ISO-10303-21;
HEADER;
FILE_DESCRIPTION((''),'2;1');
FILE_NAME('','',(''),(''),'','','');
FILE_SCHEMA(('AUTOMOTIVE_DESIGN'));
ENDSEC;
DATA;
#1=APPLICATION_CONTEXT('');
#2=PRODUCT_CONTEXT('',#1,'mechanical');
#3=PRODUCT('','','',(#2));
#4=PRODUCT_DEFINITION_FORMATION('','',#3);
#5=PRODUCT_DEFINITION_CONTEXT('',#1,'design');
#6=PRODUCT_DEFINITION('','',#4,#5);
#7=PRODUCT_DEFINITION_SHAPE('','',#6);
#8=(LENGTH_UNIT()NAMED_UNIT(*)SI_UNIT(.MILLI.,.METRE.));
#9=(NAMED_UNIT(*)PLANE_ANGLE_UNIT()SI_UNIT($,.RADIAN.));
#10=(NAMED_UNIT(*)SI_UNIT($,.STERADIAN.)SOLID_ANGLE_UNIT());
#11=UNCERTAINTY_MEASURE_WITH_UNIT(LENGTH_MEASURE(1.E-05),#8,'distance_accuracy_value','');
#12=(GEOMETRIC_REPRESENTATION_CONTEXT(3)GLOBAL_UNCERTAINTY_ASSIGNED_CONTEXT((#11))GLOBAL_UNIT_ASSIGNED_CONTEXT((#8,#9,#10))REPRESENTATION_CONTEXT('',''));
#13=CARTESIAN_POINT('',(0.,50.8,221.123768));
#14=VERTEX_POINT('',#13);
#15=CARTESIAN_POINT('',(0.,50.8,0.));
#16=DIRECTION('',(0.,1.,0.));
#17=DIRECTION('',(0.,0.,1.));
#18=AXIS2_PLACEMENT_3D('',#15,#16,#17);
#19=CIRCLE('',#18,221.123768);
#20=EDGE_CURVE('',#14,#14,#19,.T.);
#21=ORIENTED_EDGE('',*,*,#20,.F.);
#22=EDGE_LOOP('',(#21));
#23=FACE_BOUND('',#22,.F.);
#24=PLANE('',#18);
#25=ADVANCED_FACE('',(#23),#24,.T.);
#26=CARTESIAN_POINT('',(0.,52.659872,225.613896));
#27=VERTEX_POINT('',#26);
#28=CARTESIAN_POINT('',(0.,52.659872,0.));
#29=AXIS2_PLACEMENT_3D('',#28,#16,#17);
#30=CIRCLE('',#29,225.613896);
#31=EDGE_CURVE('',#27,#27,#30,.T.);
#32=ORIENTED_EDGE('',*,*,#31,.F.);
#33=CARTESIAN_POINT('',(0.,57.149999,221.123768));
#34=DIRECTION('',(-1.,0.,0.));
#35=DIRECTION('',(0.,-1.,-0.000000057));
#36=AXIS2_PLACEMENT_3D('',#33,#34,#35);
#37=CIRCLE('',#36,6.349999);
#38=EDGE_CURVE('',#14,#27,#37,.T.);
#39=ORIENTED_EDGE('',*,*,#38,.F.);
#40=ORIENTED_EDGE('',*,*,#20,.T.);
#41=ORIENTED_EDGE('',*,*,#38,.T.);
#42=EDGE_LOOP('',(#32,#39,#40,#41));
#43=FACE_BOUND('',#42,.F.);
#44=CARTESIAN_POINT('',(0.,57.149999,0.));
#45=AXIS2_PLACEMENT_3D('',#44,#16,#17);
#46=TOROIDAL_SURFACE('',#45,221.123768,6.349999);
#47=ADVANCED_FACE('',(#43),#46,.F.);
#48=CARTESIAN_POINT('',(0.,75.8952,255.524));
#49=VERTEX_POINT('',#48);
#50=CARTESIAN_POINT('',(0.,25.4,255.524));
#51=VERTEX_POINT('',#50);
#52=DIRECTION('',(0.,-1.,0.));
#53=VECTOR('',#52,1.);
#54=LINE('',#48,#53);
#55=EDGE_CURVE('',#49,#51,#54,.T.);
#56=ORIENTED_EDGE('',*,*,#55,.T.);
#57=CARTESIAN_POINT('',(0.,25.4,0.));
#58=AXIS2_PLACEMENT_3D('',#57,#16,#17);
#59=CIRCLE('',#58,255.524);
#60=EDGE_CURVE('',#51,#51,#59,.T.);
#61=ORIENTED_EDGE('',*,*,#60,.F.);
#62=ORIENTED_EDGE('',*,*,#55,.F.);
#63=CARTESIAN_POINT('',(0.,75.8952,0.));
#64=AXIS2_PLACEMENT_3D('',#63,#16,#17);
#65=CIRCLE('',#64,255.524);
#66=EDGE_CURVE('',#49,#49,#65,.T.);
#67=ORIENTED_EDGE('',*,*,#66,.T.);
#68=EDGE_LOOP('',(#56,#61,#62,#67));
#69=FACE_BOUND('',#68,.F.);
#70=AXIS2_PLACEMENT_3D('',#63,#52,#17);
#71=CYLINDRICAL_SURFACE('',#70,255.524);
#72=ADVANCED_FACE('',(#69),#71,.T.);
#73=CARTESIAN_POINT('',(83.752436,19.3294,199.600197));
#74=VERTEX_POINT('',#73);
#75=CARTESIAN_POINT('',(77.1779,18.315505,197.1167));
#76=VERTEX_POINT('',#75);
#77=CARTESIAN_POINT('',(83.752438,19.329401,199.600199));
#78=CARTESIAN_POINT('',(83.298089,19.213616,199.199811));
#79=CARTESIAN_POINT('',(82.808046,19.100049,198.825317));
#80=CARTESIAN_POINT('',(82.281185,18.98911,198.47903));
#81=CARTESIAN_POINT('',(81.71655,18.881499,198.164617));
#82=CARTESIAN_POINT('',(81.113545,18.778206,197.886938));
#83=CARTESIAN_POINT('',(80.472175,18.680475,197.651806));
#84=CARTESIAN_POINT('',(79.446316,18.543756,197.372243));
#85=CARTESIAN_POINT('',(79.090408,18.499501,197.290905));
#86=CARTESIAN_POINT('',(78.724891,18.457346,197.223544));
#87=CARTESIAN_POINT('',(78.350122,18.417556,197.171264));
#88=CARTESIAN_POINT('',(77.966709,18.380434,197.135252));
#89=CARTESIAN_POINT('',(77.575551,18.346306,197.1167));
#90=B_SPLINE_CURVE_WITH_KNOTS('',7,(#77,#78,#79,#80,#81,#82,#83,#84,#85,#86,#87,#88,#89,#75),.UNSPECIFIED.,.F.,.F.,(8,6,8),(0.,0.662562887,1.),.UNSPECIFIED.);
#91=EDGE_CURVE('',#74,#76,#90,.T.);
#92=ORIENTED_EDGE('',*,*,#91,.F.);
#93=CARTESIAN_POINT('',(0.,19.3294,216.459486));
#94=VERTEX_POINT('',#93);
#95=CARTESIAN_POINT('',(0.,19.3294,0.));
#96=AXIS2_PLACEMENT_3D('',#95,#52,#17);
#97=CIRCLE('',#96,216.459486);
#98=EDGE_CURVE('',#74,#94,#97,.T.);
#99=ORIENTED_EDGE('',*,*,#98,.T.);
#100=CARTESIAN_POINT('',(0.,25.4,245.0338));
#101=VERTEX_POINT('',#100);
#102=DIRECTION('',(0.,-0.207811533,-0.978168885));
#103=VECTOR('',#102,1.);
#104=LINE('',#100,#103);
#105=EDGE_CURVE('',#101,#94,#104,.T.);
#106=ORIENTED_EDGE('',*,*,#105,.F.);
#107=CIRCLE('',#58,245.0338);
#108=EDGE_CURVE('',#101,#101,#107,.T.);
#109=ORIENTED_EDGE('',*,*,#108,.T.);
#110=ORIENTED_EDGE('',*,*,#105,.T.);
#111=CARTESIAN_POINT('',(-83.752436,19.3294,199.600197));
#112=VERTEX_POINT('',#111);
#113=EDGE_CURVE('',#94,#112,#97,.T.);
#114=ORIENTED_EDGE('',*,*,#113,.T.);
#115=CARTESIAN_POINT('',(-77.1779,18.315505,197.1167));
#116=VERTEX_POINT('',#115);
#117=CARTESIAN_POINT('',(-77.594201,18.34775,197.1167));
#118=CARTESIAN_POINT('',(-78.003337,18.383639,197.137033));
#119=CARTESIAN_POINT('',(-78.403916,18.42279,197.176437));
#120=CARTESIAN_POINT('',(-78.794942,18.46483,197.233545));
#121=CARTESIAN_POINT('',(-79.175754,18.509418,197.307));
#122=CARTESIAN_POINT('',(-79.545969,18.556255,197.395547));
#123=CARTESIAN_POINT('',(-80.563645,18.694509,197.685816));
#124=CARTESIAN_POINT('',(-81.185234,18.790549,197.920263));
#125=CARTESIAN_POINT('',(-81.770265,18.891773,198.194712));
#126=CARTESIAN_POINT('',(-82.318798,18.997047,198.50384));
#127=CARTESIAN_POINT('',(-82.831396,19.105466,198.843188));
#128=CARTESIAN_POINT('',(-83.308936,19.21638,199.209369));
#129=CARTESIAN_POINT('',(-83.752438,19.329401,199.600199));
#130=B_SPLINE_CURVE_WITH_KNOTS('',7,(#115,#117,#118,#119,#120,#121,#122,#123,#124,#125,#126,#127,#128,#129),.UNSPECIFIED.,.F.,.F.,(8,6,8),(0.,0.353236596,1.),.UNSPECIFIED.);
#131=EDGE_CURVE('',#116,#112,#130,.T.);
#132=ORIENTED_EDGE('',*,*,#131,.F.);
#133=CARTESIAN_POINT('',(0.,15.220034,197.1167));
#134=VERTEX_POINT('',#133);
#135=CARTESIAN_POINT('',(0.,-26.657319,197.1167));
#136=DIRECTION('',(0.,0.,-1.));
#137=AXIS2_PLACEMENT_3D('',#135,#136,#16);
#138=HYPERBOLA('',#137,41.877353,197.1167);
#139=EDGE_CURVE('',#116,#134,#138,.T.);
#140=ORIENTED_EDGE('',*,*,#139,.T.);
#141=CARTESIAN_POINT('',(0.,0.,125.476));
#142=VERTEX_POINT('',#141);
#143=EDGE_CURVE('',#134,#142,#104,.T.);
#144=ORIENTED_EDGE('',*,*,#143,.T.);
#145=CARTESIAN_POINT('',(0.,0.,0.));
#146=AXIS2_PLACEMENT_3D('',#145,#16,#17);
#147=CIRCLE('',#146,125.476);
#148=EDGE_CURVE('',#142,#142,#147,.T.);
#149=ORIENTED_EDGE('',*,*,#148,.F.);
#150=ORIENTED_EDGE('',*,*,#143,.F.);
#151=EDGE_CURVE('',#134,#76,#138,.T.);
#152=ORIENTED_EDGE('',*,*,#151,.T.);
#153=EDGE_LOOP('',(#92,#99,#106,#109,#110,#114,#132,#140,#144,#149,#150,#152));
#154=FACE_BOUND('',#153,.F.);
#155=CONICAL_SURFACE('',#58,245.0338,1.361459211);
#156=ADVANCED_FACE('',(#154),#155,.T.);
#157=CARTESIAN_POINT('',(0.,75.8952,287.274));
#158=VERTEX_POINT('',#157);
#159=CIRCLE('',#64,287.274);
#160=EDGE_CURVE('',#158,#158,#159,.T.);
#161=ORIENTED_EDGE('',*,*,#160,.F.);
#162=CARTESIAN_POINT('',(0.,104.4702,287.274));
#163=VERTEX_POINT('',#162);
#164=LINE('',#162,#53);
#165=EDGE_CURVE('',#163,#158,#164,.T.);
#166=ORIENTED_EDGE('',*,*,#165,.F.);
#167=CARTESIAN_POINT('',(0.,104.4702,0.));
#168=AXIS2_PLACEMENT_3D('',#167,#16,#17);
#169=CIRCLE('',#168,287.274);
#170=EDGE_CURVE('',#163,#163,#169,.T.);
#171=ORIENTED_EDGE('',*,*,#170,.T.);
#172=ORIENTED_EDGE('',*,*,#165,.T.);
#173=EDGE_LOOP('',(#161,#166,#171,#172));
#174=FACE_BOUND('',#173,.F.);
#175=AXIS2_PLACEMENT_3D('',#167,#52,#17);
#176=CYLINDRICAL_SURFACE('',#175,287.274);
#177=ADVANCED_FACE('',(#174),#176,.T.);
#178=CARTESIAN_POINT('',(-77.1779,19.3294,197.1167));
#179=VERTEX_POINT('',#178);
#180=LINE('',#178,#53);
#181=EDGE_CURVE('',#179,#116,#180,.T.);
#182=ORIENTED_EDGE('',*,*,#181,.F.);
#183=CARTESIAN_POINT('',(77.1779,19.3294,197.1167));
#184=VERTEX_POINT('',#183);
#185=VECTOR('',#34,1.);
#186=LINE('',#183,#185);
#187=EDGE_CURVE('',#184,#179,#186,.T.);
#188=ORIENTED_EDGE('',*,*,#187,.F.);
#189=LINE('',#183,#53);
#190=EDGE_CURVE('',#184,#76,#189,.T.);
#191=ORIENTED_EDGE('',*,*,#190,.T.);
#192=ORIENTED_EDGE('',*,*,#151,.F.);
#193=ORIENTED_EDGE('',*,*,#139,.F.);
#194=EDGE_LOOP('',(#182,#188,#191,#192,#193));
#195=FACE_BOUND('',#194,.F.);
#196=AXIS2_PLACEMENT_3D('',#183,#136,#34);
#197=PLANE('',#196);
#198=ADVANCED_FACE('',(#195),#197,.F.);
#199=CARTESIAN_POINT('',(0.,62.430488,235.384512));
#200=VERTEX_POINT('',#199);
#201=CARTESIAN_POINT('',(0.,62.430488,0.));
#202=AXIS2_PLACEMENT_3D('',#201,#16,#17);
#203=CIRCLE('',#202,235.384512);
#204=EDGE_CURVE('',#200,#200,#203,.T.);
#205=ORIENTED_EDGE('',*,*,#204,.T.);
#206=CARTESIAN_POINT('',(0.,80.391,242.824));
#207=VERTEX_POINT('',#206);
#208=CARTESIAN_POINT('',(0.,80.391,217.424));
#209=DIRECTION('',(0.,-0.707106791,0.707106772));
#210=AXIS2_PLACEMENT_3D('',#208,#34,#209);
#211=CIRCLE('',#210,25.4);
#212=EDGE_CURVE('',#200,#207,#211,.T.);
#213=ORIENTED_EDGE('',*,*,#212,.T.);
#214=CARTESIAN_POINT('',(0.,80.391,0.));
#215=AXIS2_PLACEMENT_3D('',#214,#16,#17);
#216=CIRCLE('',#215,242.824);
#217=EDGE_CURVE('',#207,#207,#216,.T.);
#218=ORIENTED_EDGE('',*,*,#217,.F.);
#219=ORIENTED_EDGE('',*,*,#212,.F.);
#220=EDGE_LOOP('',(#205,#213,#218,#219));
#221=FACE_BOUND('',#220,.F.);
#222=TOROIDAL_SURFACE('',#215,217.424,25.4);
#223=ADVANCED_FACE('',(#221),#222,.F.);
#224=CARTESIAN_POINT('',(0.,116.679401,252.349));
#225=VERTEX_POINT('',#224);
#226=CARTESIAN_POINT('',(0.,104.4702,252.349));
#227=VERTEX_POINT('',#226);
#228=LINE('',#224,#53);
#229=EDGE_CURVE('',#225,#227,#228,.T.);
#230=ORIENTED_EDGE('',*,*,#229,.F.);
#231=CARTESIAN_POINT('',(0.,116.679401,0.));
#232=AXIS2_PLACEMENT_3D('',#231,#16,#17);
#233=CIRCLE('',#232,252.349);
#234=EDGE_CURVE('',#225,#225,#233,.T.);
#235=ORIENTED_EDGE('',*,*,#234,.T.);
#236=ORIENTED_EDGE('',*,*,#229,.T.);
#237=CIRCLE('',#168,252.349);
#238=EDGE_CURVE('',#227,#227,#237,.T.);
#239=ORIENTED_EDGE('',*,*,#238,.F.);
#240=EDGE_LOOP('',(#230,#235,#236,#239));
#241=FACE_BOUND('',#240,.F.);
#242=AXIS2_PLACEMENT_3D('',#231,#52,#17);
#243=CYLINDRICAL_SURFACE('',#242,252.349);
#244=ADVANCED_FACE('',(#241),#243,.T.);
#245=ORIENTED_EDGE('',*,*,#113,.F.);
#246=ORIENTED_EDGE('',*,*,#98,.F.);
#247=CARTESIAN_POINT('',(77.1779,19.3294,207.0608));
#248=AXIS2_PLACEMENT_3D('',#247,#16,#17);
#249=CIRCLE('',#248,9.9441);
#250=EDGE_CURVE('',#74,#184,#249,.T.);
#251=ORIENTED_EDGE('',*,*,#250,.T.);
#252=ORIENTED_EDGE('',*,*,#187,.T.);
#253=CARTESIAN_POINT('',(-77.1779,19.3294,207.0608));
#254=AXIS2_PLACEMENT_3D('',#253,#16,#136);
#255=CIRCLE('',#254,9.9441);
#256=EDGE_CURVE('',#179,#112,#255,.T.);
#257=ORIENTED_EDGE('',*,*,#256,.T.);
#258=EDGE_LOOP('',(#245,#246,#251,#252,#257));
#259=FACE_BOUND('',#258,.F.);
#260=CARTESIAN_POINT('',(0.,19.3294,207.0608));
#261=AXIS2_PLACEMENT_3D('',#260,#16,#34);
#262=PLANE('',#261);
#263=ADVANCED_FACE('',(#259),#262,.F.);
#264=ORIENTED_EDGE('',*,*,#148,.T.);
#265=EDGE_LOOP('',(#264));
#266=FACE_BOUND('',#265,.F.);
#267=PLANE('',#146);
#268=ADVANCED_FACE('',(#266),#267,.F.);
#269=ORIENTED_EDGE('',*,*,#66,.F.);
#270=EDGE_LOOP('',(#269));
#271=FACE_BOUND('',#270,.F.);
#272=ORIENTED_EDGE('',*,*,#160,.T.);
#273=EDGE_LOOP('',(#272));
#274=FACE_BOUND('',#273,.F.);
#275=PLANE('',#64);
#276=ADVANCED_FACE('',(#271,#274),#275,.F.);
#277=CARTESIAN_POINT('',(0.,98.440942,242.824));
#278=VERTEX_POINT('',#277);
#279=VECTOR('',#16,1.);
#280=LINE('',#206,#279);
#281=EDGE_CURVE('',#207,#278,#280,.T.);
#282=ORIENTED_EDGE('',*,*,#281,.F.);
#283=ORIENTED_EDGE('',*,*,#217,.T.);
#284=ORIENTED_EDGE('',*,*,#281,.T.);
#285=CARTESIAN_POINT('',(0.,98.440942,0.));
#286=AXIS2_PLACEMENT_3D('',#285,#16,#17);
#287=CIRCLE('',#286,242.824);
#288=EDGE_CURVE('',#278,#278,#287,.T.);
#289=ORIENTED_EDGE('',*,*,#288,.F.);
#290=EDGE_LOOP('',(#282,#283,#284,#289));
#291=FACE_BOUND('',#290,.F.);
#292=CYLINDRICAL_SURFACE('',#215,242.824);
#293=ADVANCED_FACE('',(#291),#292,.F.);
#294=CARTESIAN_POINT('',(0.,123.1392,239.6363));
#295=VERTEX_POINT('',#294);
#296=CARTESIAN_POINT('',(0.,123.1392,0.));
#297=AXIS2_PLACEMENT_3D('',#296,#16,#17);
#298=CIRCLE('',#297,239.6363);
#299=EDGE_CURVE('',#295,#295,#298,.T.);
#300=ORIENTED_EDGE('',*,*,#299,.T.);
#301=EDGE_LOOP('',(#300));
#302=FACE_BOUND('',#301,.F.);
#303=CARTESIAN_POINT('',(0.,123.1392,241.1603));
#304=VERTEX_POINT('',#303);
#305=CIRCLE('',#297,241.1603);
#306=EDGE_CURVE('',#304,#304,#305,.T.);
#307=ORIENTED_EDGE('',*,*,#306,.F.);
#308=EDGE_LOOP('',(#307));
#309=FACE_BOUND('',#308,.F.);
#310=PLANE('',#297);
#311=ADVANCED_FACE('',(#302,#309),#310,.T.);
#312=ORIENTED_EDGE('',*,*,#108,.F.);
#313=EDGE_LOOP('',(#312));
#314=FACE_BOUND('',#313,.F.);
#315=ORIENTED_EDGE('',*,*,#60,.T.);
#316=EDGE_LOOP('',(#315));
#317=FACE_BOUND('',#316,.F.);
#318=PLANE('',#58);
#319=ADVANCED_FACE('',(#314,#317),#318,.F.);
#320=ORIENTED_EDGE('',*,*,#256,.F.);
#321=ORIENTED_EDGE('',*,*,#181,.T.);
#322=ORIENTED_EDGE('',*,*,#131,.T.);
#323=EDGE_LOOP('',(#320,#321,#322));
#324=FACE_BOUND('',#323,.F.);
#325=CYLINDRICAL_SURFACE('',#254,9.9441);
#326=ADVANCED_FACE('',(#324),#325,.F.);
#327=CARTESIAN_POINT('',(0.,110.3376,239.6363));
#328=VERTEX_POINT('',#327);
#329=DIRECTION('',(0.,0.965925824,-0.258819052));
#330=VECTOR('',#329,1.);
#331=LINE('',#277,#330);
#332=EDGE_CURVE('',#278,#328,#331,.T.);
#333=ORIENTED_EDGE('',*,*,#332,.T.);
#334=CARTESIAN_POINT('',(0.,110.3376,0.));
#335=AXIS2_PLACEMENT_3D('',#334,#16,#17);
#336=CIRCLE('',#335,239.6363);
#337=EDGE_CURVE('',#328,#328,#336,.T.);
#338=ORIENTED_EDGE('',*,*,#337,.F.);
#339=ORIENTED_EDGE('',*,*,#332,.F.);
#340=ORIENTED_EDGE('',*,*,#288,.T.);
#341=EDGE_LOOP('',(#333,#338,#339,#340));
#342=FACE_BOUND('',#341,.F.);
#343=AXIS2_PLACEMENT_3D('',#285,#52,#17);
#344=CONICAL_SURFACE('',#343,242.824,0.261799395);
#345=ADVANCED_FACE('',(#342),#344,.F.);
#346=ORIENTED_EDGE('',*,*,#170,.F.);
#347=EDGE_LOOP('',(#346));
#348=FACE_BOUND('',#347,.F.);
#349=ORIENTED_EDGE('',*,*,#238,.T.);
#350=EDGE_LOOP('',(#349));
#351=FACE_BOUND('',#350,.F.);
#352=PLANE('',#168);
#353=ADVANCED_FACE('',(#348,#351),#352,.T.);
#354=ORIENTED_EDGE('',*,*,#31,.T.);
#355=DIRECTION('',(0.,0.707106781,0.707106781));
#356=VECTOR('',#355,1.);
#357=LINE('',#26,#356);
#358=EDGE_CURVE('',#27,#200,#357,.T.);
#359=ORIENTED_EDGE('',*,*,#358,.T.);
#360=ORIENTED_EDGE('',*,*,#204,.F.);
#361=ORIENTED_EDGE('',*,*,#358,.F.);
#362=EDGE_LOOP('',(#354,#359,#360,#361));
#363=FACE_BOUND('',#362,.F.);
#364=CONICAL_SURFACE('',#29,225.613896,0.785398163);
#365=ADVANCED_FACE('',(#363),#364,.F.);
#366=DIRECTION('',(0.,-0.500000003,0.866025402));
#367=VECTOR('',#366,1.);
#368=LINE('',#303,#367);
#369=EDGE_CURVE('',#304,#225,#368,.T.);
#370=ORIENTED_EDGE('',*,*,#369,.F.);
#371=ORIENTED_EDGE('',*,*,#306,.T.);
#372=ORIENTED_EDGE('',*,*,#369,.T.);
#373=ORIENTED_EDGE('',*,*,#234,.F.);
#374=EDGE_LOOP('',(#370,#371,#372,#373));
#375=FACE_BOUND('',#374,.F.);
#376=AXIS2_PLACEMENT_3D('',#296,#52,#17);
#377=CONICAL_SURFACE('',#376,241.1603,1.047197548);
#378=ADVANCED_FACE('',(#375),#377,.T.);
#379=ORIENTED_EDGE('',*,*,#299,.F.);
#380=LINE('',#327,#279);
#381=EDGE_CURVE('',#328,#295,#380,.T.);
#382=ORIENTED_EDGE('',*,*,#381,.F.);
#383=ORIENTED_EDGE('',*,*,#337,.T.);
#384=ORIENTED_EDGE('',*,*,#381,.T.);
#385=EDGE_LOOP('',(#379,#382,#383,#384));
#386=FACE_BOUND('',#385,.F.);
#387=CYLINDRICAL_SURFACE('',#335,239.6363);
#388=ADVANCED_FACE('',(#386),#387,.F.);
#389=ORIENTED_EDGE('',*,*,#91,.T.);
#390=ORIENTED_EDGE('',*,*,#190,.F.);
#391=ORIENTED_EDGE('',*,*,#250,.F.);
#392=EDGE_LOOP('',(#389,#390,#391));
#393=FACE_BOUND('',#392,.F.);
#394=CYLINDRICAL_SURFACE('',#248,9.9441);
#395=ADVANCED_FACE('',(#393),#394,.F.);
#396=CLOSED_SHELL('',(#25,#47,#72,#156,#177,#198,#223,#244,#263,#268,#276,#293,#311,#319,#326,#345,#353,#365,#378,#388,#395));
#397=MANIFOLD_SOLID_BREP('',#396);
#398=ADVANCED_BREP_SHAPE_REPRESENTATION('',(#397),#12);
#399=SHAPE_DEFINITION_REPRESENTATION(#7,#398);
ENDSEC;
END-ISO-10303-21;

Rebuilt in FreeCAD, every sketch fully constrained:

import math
import FreeCAD as App
import Part
import Sketcher

V = App.Vector
Q = App.Units.Quantity

doc = App.newDocument("Part")
body = doc.addObject("PartDesign::Body", "Body")

sketch1 = body.newObject("Sketcher::SketchObject", "Sketch")
sketch1.AttachmentSupport = (doc.getObject("YZ_Plane"), [""])
sketch1.MapMode = "FlatFace"
sketch1.addGeometry([
    Part.LineSegment(V(123.1392, 241.1603, 0), V(116.679401, 252.349, 0)),
    Part.LineSegment(V(116.679401, 252.349, 0), V(104.4702, 252.349, 0)),
    Part.LineSegment(V(104.4702, 252.349, 0), V(104.4702, 287.274, 0)),
    Part.LineSegment(V(104.4702, 287.274, 0), V(75.8952, 287.274, 0)),
    Part.LineSegment(V(75.8952, 287.274, 0), V(75.8952, 255.524, 0)),
    Part.LineSegment(V(75.8952, 255.524, 0), V(25.4, 255.524, 0)),
    Part.LineSegment(V(25.4, 255.524, 0), V(25.4, 245.0338, 0)),
    Part.LineSegment(V(25.4, 245.0338, 0), V(0, 125.476, 0)),
    Part.LineSegment(V(0, 125.476, 0), V(0, 0, 0)),
    Part.LineSegment(V(0, 0, 0), V(50.8, 0, 0)),
    Part.LineSegment(V(50.8, 0, 0), V(50.8, 221.123768, 0)),
    Part.ArcOfCircle(Part.Circle(V(57.149999, 221.123768, 0), V(0, 0, 1), 6.349999), math.radians(134.999995), math.radians(180.000003)),
    Part.LineSegment(V(52.659872, 225.613896, 0), V(62.430488, 235.384512, 0)),
    Part.ArcOfCircle(Part.Circle(V(80.391, 217.424, 0), V(0, 0, 1), 25.4), math.radians(90.000001), math.radians(135.000001)),
    Part.LineSegment(V(80.391, 242.824, 0), V(98.440942, 242.824, 0)),
    Part.LineSegment(V(98.440942, 242.824, 0), V(110.3376, 239.6363, 0)),
    Part.LineSegment(V(110.3376, 239.6363, 0), V(123.1392, 239.6363, 0)),
    Part.LineSegment(V(123.1392, 239.6363, 0), V(123.1392, 241.1603, 0)),
], False)
sketch1.addConstraint([
    Sketcher.Constraint("Coincident", 0, 2, 1, 1),
    Sketcher.Constraint("Coincident", 1, 2, 2, 1),
    Sketcher.Constraint("Coincident", 2, 2, 3, 1),
    Sketcher.Constraint("Coincident", 3, 2, 4, 1),
    Sketcher.Constraint("Coincident", 4, 2, 5, 1),
    Sketcher.Constraint("Coincident", 5, 2, 6, 1),
    Sketcher.Constraint("Coincident", 6, 2, 7, 1),
    Sketcher.Constraint("Coincident", 7, 2, 8, 1),
    Sketcher.Constraint("Coincident", 8, 2, 9, 1),
    Sketcher.Constraint("Coincident", 9, 2, 10, 1),
    Sketcher.Constraint("Tangent", 10, 2, 11, 2),
    Sketcher.Constraint("Tangent", 11, 1, 12, 1),
    Sketcher.Constraint("Tangent", 12, 2, 13, 2),
    Sketcher.Constraint("Tangent", 13, 1, 14, 1),
    Sketcher.Constraint("Coincident", 14, 2, 15, 1),
    Sketcher.Constraint("Coincident", 15, 2, 16, 1),
    Sketcher.Constraint("Coincident", 16, 2, 17, 1),
    Sketcher.Constraint("Coincident", 17, 2, 0, 1),
    Sketcher.Constraint("Horizontal", 1),
    Sketcher.Constraint("Vertical", 2),
    Sketcher.Constraint("Horizontal", 3),
    Sketcher.Constraint("Vertical", 4),
    Sketcher.Constraint("Horizontal", 5),
    Sketcher.Constraint("Vertical", 6),
    Sketcher.Constraint("Vertical", 8),
    Sketcher.Constraint("Horizontal", 9),
    Sketcher.Constraint("Vertical", 10),
    Sketcher.Constraint("Horizontal", 14),
    Sketcher.Constraint("Horizontal", 16),
    Sketcher.Constraint("Vertical", 17),
    Sketcher.Constraint("Coincident", 8, 2, -1, 1),
    Sketcher.Constraint("Radius", 13, Q("1 in")),
    Sketcher.Constraint("DistanceX", 9, 1, 9, 2, Q("2 in")),
    Sketcher.Constraint("Radius", 11, Q("0.25 in")),
    Sketcher.Constraint("DistanceX", -1, 1, 5, 2, Q("1 in")),
    Sketcher.Constraint("Angle", 0, Q("120 deg")),
    Sketcher.Constraint("Angle", 12, Q("45 deg")),
    Sketcher.Constraint("Angle", 15, Q("-15 deg")),
    Sketcher.Constraint("DistanceY", 4, 2, 4, 1, Q("1.25 in")),
    Sketcher.Constraint("DistanceY", 8, 2, 8, 1, Q("4.94 in")),
    Sketcher.Constraint("DistanceY", 17, 1, 17, 2, Q("0.06 in")),
    Sketcher.Constraint("DistanceY", 13, 3, 4, 2, Q("1.5 in")),
    Sketcher.Constraint("DistanceX", 3, 2, 3, 1, Q("1.125 in")),
    Sketcher.Constraint("DistanceX", 5, 2, 5, 1, Q("1.988 in")),
    Sketcher.Constraint("DistanceX", 16, 1, 16, 2, Q("0.504 in")),
    Sketcher.Constraint("DistanceY", 2, 1, 2, 2, Q("1.375 in")),
    Sketcher.Constraint("DistanceY", 6, 2, 6, 1, Q("0.413 in")),
    Sketcher.Constraint("DistanceY", -1, 1, 13, 3, Q("8.56 in")),
    Sketcher.Constraint("DistanceX", -1, 1, 13, 3, Q("3.165 in")),
    Sketcher.Constraint("DistanceX", -1, 1, 15, 2, Q("4.344 in")),
    Sketcher.Constraint("DistanceX", 1, 2, 1, 1, 12.209201),
])
revolution = body.newObject("PartDesign::Revolution", "Revolution")
revolution.Profile = sketch1
revolution.ReferenceAxis = (sketch1, ["H_Axis"])
revolution.Angle = 360

sketch2 = body.newObject("Sketcher::SketchObject", "Sketch001")
sketch2.AttachmentSupport = (doc.getObject("XZ_Plane"), [""])
sketch2.MapMode = "FlatFace"
sketch2.AttachmentOffset = App.Placement(V(0, 0, -0.761 * 25.4), App.Rotation())
sketch2.addGeometry([
    Part.LineSegment(V(77.1779, 197.1167, 0), V(-77.1779, 197.1167, 0)),
    Part.ArcOfCircle(Part.Circle(V(-77.1779, 207.0608, 0), V(0, 0, 1), 9.9441), math.radians(90), math.radians(270)),
    Part.LineSegment(V(-77.1779, 217.0049, 0), V(77.1779, 217.0049, 0)),
    Part.ArcOfCircle(Part.Circle(V(77.1779, 207.0608, 0), V(0, 0, 1), 9.9441), math.radians(-90), math.radians(90)),
], False)
sketch2.addConstraint([
    Sketcher.Constraint("Tangent", 0, 2, 1, 2),
    Sketcher.Constraint("Tangent", 1, 1, 2, 1),
    Sketcher.Constraint("Tangent", 2, 2, 3, 2),
    Sketcher.Constraint("Tangent", 3, 1, 0, 1),
    Sketcher.Constraint("Horizontal", 0),
    Sketcher.Constraint("Horizontal", 2),
    Sketcher.Constraint("Radius", 1, Q("0.3915 in")),
    Sketcher.Constraint("DistanceX", 0, 2, 0, 1, Q("6.077 in")),
    Sketcher.Constraint("DistanceY", -1, 1, 1, 3, Q("8.152 in")),
    Sketcher.Constraint("DistanceX", 1, 3, -1, 1, Q("3.0385 in")),
])
pocket1 = body.newObject("PartDesign::Pocket", "Pocket")
pocket1.Profile = sketch2
pocket1.Type = "ThroughAll"
pocket1.Reversed = True

doc.recompute()
